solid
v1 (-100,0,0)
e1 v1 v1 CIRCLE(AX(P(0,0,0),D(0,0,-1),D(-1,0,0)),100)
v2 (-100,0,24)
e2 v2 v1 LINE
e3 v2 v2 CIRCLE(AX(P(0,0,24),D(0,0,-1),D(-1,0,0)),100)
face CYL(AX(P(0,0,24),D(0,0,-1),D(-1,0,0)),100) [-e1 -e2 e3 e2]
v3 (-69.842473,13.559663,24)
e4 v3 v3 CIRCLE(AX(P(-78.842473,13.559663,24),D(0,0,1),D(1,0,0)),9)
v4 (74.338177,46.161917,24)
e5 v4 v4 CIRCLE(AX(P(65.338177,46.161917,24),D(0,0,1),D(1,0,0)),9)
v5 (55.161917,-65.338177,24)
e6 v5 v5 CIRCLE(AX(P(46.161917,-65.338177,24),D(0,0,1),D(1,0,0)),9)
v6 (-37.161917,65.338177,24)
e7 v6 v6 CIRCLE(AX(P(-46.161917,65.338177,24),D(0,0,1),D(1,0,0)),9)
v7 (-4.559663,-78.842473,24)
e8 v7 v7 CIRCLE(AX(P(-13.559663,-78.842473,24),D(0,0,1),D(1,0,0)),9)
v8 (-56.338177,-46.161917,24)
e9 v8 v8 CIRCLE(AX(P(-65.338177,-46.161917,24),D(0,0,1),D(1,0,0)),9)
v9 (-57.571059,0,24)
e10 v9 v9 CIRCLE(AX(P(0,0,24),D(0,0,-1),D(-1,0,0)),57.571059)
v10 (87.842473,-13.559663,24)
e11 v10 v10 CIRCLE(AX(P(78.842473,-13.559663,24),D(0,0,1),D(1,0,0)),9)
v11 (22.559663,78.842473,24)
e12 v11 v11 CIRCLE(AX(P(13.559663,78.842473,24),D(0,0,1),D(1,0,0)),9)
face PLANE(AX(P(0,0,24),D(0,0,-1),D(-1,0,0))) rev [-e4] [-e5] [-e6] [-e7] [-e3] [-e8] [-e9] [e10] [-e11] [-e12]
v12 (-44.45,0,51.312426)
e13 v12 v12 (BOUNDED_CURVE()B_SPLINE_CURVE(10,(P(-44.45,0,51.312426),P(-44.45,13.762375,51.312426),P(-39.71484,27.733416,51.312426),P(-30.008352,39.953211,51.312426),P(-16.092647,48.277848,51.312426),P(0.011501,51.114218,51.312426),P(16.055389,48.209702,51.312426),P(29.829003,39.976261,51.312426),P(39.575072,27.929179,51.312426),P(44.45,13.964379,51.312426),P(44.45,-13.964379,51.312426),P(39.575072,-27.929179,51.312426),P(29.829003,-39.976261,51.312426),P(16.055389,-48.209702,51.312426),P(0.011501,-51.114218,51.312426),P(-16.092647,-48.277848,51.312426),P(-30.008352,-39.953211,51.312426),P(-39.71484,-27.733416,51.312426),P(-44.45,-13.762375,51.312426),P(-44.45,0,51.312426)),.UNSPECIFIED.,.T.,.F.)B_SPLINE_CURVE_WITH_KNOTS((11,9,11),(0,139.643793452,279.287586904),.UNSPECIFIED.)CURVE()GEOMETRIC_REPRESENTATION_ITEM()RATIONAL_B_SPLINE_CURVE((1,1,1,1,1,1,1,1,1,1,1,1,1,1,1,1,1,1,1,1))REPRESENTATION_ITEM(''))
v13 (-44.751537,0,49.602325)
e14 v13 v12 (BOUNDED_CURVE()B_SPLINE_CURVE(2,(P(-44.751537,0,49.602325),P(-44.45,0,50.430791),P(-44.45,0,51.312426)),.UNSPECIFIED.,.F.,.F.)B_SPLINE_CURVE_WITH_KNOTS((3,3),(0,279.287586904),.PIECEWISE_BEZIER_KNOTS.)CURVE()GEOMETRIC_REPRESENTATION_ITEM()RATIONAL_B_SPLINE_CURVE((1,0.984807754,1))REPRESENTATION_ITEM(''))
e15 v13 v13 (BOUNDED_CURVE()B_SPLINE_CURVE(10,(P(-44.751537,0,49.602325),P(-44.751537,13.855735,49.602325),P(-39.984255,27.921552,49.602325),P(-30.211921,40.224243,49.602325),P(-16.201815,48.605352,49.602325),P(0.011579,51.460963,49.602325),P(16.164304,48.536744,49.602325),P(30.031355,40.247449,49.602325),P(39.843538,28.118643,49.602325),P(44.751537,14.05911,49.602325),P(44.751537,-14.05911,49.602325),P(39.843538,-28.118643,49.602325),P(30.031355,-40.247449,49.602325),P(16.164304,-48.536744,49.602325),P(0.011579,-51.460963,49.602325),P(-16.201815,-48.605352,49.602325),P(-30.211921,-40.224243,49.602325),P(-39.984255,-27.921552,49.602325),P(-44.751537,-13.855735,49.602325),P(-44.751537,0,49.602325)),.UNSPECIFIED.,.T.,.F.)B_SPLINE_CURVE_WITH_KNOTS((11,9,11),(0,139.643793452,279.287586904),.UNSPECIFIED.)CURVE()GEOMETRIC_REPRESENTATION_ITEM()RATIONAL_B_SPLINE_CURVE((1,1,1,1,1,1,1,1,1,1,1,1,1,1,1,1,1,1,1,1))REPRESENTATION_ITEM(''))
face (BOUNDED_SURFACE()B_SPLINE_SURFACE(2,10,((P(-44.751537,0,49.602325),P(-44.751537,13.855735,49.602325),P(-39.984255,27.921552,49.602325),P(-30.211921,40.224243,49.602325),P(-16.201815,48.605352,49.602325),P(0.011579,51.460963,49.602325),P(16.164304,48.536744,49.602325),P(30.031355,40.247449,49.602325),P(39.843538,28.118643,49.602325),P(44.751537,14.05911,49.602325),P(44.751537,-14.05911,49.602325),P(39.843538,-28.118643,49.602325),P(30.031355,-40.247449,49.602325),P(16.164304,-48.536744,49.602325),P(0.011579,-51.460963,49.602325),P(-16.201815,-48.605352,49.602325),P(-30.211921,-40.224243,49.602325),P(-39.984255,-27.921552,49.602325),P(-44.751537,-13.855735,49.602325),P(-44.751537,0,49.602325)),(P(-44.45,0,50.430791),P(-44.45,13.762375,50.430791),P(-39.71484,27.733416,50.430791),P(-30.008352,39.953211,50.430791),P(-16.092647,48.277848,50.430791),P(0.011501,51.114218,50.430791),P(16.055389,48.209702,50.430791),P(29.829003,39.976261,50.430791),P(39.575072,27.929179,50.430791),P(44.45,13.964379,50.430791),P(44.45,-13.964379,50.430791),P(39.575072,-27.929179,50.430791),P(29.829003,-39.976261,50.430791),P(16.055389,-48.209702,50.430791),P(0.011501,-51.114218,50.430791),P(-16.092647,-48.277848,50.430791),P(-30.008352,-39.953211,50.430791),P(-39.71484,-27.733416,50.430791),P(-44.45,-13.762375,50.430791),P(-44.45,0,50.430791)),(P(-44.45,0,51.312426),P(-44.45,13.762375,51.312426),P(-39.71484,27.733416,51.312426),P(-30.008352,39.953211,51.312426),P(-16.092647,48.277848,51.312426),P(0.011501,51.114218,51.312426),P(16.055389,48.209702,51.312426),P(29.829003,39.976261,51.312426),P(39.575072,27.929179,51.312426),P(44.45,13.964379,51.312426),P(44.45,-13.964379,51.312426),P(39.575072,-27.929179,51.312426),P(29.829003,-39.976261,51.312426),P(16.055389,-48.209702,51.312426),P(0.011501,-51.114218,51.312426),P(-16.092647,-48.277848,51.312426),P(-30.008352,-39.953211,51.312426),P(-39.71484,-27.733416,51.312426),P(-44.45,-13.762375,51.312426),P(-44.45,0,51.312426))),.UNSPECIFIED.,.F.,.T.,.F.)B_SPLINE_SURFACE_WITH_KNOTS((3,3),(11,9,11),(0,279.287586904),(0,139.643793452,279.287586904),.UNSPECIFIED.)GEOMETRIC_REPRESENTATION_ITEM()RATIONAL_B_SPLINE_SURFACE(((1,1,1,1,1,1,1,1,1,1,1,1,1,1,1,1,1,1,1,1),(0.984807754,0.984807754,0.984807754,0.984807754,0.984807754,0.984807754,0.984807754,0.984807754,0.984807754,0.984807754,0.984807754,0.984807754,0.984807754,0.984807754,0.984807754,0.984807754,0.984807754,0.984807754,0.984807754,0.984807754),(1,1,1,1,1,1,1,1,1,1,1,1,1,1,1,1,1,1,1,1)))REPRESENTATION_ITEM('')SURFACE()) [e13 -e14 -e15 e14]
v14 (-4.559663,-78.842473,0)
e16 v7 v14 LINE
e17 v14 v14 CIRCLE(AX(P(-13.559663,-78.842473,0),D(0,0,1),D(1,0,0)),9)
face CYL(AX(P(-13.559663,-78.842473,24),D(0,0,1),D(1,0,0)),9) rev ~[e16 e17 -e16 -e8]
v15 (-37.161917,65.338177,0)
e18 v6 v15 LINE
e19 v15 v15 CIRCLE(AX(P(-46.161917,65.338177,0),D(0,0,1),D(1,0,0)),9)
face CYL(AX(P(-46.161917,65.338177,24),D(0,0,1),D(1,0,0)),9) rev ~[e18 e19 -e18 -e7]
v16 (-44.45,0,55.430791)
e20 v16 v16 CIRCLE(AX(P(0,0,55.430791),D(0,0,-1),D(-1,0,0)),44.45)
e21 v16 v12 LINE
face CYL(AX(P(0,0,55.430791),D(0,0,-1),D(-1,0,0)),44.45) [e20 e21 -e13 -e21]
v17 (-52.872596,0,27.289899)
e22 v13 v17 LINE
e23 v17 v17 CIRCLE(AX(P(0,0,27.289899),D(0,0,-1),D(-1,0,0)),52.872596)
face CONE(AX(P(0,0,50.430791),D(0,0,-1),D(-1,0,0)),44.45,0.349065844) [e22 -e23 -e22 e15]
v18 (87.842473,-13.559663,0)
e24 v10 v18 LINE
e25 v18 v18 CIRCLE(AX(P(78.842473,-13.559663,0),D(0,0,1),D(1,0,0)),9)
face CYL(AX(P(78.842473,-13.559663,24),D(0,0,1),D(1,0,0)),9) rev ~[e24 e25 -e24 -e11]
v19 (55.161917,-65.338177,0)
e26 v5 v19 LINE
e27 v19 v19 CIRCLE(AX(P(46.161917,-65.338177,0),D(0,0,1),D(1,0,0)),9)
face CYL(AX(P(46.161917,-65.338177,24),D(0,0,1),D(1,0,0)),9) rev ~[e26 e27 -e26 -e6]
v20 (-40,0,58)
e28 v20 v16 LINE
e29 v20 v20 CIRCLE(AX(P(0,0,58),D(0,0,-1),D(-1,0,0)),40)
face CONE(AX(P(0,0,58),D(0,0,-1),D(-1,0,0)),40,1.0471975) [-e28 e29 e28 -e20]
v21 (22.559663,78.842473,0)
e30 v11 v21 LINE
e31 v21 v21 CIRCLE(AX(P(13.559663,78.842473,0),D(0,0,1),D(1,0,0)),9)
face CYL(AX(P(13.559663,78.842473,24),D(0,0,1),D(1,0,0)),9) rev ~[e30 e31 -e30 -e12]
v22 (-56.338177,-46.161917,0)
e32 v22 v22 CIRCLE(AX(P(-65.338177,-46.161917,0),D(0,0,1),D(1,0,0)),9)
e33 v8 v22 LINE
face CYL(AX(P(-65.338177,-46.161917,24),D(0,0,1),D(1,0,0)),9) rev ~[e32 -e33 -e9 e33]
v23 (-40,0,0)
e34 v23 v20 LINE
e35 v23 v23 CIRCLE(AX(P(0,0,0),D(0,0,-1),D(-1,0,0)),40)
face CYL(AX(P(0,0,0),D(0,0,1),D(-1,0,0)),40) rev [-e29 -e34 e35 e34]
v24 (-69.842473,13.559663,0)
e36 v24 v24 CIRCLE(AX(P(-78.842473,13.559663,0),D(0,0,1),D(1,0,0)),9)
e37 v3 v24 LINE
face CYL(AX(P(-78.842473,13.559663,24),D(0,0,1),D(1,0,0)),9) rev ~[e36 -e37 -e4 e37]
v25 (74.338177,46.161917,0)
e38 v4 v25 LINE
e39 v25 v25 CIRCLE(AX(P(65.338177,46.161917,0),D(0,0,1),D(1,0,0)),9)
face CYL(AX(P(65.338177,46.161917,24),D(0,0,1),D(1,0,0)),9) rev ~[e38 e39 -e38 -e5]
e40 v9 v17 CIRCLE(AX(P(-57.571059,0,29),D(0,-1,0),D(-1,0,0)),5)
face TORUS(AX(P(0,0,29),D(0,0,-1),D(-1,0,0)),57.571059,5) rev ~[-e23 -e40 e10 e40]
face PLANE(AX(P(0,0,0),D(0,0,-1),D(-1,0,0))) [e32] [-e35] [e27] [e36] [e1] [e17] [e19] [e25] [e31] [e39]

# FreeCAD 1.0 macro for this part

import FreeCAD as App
import Part
import Sketcher
Q = App.Units.Quantity


def edges_at(feature, points):
    """Names of the edges that pass closest to the given points."""
    edges = feature.Shape.Edges
    near = lambda p: min(range(len(edges)), key=lambda i: edges[i].distToShape(Part.Vertex(*p))[0])
    return sorted({f"Edge{near(p) + 1}" for p in points})


def add_polygon(sketch, points):
    """Adds a closed chain of lines whose ends are joined by coincident constraints."""
    first, n = sketch.GeometryCount, len(points)
    for a, b in zip(points, points[1:] + points[:1]):
        sketch.addGeometry(Part.LineSegment(App.Vector(*a, 0), App.Vector(*b, 0)), False)
    for i in range(n):
        sketch.addConstraint(Sketcher.Constraint("Coincident", first + i, 2, first + (i + 1) % n, 1))

doc = App.newDocument("Part")
body = doc.addObject("PartDesign::Body", "Body")

sketch1 = body.newObject("Sketcher::SketchObject", "Sketch")
sketch1.AttachmentSupport = (doc.getObject("XZ_Plane"), [""])
sketch1.MapMode = "FlatFace"
add_polygon(sketch1, [(-100, 0), (-40, 0), (-40, 58), (-44, 55), (-44, 50), (-54, 24), (-100, 24)])
sketch1.addConstraint([
    Sketcher.Constraint("Horizontal", 0),
    Sketcher.Constraint("Vertical", 1),
    Sketcher.Constraint("Vertical", 3),
    Sketcher.Constraint("Horizontal", 5),
    Sketcher.Constraint("Vertical", 6),
    Sketcher.Constraint("PointOnObject", 0, 2, -1),
    Sketcher.Constraint("DistanceX", 0, 1, 0, 2, 60.0),
    Sketcher.Constraint("DistanceY", 1, 1, 1, 2, 58.0),
    Sketcher.Constraint("DistanceY", 3, 2, 3, 1, 5.0),
    Sketcher.Constraint("DistanceY", 6, 2, 6, 1, 24.0),
    Sketcher.Constraint("Angle", 2, Q("-149.999997 deg")),
    Sketcher.Constraint("Angle", 4, Q("-110 deg")),
    Sketcher.Constraint("DistanceX", 0, 2, -1, 1, 40.0),
    Sketcher.Constraint("DistanceX", 2, 2, -1, 1, 44.45),
])
revolution = body.newObject("PartDesign::Revolution", "Revolution")
revolution.Profile = sketch1
revolution.ReferenceAxis = (sketch1, ["V_Axis"])
revolution.Angle = 360

sketch2 = body.newObject("Sketcher::SketchObject", "Sketch001")
sketch2.AttachmentSupport = (doc.getObject("XY_Plane"), [""])
sketch2.MapMode = "FlatFace"
sketch2.AttachmentOffset = App.Placement(App.Vector(0, 0, 24), App.Rotation())
sketch2.addGeometry([
    Part.Circle(App.Vector(-46, 65, 0), App.Vector(0, 0, 1), 9),
    Part.Circle(App.Vector(-79, 14, 0), App.Vector(0, 0, 1), 9),
    Part.Circle(App.Vector(-65, -46, 0), App.Vector(0, 0, 1), 9),
    Part.Circle(App.Vector(-14, -79, 0), App.Vector(0, 0, 1), 9),
    Part.Circle(App.Vector(46, -65, 0), App.Vector(0, 0, 1), 9),
    Part.Circle(App.Vector(79, -14, 0), App.Vector(0, 0, 1), 9),
    Part.Circle(App.Vector(65, 46, 0), App.Vector(0, 0, 1), 9),
    Part.Circle(App.Vector(14, 79, 0), App.Vector(0, 0, 1), 9),
], False)
sketch2.addConstraint([
    Sketcher.Constraint("Equal", 0, 1),
    Sketcher.Constraint("Equal", 1, 2),
    Sketcher.Constraint("Equal", 2, 3),
    Sketcher.Constraint("Equal", 3, 4),
    Sketcher.Constraint("Equal", 4, 5),
    Sketcher.Constraint("Equal", 5, 6),
    Sketcher.Constraint("Equal", 6, 7),
    Sketcher.Constraint("Symmetric", 0, 3, 4, 3, -1, 1),
    Sketcher.Constraint("Symmetric", 1, 3, 5, 3, -1, 1),
    Sketcher.Constraint("Symmetric", 2, 3, 6, 3, -1, 1),
    Sketcher.Constraint("Symmetric", 3, 3, 7, 3, -1, 1),
    Sketcher.Constraint("Diameter", 0, 18.0),
    Sketcher.Constraint("DistanceY", 2, 3, 1, 3, 59.72158),
    Sketcher.Constraint("DistanceX", 2, 3, 0, 3, 19.17626),
    Sketcher.Constraint("DistanceX", 1, 3, 3, 3, 65.28281),
    Sketcher.Constraint("DistanceY", 3, 3, 0, 3, 144.18065),
    Sketcher.Constraint("DistanceX", 3, 3, 4, 3, 59.72158),
    Sketcher.Constraint("DistanceY", 4, 3, 2, 3, 19.17626),
    Sketcher.Constraint("DistanceX", 0, 3, -1, 1, 46.161917),
    Sketcher.Constraint("DistanceY", -1, 1, 0, 3, 65.338177),
])
pocket1 = body.newObject("PartDesign::Pocket", "Pocket")
pocket1.Profile = sketch2
pocket1.Length = 25
doc.recompute()

fillet = body.newObject("PartDesign::Fillet", "Fillet")
fillet.Base = (pocket1, edges_at(pocket1, [(54.07, 0, 24), (44.45, 0, 50.431)]))
fillet.Radius = 5

doc.recompute()
